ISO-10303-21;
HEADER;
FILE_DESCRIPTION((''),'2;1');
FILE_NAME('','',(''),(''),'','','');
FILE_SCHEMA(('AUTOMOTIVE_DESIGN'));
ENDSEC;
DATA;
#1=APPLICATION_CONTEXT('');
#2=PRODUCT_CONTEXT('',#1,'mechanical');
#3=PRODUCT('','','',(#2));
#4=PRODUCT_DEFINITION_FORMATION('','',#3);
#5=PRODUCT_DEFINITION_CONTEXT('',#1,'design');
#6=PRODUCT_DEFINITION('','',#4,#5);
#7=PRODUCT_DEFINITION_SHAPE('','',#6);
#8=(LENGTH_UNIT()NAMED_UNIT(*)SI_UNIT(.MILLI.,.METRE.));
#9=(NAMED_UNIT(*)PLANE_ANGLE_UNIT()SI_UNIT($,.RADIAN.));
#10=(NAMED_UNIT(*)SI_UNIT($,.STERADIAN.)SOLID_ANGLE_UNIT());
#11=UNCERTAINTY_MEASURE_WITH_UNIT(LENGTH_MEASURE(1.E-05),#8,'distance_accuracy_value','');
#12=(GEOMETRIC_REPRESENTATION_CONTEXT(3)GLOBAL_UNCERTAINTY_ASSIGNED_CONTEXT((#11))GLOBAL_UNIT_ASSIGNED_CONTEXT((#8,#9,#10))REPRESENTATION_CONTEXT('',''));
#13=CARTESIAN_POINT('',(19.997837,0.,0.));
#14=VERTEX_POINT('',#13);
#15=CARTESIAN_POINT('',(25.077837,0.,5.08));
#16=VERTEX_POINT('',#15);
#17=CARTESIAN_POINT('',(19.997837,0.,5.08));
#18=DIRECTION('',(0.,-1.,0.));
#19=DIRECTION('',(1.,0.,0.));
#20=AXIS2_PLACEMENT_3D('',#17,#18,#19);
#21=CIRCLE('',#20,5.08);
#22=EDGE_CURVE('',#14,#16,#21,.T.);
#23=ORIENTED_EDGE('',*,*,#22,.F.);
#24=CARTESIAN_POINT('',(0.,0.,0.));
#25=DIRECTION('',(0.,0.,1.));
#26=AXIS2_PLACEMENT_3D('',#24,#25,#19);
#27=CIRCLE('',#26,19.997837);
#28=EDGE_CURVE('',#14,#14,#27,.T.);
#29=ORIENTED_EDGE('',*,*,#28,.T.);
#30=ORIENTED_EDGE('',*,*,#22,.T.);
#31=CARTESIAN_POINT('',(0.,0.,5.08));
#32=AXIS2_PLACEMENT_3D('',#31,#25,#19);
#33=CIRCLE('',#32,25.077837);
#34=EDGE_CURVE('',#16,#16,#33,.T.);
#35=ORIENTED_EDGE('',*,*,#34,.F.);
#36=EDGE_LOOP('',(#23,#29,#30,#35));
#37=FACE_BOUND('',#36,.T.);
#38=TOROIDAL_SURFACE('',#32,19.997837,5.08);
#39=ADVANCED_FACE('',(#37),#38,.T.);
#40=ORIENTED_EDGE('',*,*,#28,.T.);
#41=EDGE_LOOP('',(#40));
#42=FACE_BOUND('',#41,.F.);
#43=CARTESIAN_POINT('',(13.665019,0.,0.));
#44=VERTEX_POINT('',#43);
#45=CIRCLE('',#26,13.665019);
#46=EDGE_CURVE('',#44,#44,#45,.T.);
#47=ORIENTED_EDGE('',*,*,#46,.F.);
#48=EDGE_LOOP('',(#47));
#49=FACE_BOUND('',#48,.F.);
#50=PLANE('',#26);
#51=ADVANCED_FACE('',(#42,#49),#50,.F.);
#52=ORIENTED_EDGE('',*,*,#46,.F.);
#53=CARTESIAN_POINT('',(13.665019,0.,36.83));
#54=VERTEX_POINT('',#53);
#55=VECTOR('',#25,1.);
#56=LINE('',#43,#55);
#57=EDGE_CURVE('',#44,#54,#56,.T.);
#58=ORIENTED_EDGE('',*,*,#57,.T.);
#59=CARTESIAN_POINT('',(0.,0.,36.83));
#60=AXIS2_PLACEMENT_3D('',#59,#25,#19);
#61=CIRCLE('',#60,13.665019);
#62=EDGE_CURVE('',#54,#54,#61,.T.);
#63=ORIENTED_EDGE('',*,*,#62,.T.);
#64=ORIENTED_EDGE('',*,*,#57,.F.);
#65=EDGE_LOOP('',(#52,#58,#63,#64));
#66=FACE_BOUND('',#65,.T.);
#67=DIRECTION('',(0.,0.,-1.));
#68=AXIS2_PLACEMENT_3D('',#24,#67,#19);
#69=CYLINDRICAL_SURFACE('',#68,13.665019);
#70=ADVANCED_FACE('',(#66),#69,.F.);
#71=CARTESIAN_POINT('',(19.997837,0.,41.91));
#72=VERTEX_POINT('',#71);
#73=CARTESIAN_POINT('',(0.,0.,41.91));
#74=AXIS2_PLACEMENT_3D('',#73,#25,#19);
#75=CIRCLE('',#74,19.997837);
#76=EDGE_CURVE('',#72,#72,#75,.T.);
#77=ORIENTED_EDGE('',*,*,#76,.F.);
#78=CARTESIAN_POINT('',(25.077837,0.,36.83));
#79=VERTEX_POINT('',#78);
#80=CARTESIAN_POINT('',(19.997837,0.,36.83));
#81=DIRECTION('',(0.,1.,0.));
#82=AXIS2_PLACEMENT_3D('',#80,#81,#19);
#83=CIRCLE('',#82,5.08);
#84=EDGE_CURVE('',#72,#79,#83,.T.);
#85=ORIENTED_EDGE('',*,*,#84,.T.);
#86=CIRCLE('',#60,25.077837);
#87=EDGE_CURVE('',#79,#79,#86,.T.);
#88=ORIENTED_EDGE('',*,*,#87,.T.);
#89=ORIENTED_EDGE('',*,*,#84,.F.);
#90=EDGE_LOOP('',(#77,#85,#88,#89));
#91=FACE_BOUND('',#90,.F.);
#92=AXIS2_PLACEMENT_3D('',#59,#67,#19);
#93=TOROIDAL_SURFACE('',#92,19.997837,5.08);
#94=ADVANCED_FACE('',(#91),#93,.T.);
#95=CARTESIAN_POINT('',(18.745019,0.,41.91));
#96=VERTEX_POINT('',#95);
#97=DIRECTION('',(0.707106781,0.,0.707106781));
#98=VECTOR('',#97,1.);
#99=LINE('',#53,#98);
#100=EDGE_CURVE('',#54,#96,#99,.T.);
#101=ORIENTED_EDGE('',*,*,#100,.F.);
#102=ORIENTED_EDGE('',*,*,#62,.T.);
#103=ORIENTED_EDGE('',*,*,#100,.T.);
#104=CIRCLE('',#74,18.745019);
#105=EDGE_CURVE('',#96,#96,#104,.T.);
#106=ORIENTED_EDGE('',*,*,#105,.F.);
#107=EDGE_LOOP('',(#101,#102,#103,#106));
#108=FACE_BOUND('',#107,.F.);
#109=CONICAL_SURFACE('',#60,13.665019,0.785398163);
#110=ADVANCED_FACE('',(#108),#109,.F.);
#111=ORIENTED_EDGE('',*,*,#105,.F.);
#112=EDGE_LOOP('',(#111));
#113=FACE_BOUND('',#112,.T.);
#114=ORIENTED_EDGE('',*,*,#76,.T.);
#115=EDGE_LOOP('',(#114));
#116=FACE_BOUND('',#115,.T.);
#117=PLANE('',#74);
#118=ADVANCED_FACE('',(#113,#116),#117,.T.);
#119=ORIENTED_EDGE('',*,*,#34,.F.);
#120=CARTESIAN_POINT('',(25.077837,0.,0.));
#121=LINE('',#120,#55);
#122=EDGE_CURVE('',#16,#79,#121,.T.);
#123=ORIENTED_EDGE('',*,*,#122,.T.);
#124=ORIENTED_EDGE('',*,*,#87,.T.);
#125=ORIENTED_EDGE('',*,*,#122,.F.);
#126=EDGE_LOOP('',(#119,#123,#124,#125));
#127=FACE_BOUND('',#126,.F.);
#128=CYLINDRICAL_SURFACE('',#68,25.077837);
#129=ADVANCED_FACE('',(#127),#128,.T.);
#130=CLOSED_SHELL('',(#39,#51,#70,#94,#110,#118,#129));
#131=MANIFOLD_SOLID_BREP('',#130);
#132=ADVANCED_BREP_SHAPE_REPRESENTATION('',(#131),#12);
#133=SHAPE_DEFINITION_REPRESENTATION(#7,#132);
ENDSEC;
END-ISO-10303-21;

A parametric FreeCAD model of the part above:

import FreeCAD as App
import Part
import Sketcher
from FreeCAD import Vector
Q = App.Units.Quantity


def edges_at(feature, points):
    """Names of the edges that pass closest to the given points."""
    edges = feature.Shape.Edges
    near = lambda p: min(range(len(edges)), key=lambda i: edges[i].distToShape(Part.Vertex(*p))[0])
    return sorted({f"Edge{near(p) + 1}" for p in points})

doc = App.newDocument("Part")
body = doc.addObject("PartDesign::Body", "Body")

# Sketch on XY plane
sketch1 = body.newObject("Sketcher::SketchObject", "Sketch")
sketch1.AttachmentSupport = (doc.getObject("XY_Plane"), [""])
sketch1.MapMode = "FlatFace"
sketch1.addGeometry(Part.Circle(Vector(0, 0, 0), Vector(0, 0, 1), 25), False)
sketch1.addGeometry(Part.Circle(Vector(0, 0, 0), Vector(0, 0, 1), 14), False)
sketch1.addConstraint(Sketcher.Constraint("Coincident", 0, 3, -1, 1))
sketch1.addConstraint(Sketcher.Constraint("Coincident", 1, 3, -1, 1))
sketch1.addConstraint(Sketcher.Constraint("Diameter", 0, 50.155674))
sketch1.addConstraint(Sketcher.Constraint("Diameter", 1, 27.330038))
pad1 = body.newObject("PartDesign::Pad", "Pad")
pad1.Profile = sketch1
pad1.Length = Q("1.65 in")
doc.recompute()

chamfer = body.newObject("PartDesign::Chamfer", "Chamfer")
chamfer.Base = (pad1, edges_at(pad1, [(-13.665, 0, 41.91)]))
chamfer.Size = Q("0.2 in")
doc.recompute()

fillet = body.newObject("PartDesign::Fillet", "Fillet")
fillet.Base = (chamfer, edges_at(chamfer, [(-25.078, 0, 41.91), (-25.078, 0, 0)]))
fillet.Radius = Q("0.2 in")

doc.recompute()
